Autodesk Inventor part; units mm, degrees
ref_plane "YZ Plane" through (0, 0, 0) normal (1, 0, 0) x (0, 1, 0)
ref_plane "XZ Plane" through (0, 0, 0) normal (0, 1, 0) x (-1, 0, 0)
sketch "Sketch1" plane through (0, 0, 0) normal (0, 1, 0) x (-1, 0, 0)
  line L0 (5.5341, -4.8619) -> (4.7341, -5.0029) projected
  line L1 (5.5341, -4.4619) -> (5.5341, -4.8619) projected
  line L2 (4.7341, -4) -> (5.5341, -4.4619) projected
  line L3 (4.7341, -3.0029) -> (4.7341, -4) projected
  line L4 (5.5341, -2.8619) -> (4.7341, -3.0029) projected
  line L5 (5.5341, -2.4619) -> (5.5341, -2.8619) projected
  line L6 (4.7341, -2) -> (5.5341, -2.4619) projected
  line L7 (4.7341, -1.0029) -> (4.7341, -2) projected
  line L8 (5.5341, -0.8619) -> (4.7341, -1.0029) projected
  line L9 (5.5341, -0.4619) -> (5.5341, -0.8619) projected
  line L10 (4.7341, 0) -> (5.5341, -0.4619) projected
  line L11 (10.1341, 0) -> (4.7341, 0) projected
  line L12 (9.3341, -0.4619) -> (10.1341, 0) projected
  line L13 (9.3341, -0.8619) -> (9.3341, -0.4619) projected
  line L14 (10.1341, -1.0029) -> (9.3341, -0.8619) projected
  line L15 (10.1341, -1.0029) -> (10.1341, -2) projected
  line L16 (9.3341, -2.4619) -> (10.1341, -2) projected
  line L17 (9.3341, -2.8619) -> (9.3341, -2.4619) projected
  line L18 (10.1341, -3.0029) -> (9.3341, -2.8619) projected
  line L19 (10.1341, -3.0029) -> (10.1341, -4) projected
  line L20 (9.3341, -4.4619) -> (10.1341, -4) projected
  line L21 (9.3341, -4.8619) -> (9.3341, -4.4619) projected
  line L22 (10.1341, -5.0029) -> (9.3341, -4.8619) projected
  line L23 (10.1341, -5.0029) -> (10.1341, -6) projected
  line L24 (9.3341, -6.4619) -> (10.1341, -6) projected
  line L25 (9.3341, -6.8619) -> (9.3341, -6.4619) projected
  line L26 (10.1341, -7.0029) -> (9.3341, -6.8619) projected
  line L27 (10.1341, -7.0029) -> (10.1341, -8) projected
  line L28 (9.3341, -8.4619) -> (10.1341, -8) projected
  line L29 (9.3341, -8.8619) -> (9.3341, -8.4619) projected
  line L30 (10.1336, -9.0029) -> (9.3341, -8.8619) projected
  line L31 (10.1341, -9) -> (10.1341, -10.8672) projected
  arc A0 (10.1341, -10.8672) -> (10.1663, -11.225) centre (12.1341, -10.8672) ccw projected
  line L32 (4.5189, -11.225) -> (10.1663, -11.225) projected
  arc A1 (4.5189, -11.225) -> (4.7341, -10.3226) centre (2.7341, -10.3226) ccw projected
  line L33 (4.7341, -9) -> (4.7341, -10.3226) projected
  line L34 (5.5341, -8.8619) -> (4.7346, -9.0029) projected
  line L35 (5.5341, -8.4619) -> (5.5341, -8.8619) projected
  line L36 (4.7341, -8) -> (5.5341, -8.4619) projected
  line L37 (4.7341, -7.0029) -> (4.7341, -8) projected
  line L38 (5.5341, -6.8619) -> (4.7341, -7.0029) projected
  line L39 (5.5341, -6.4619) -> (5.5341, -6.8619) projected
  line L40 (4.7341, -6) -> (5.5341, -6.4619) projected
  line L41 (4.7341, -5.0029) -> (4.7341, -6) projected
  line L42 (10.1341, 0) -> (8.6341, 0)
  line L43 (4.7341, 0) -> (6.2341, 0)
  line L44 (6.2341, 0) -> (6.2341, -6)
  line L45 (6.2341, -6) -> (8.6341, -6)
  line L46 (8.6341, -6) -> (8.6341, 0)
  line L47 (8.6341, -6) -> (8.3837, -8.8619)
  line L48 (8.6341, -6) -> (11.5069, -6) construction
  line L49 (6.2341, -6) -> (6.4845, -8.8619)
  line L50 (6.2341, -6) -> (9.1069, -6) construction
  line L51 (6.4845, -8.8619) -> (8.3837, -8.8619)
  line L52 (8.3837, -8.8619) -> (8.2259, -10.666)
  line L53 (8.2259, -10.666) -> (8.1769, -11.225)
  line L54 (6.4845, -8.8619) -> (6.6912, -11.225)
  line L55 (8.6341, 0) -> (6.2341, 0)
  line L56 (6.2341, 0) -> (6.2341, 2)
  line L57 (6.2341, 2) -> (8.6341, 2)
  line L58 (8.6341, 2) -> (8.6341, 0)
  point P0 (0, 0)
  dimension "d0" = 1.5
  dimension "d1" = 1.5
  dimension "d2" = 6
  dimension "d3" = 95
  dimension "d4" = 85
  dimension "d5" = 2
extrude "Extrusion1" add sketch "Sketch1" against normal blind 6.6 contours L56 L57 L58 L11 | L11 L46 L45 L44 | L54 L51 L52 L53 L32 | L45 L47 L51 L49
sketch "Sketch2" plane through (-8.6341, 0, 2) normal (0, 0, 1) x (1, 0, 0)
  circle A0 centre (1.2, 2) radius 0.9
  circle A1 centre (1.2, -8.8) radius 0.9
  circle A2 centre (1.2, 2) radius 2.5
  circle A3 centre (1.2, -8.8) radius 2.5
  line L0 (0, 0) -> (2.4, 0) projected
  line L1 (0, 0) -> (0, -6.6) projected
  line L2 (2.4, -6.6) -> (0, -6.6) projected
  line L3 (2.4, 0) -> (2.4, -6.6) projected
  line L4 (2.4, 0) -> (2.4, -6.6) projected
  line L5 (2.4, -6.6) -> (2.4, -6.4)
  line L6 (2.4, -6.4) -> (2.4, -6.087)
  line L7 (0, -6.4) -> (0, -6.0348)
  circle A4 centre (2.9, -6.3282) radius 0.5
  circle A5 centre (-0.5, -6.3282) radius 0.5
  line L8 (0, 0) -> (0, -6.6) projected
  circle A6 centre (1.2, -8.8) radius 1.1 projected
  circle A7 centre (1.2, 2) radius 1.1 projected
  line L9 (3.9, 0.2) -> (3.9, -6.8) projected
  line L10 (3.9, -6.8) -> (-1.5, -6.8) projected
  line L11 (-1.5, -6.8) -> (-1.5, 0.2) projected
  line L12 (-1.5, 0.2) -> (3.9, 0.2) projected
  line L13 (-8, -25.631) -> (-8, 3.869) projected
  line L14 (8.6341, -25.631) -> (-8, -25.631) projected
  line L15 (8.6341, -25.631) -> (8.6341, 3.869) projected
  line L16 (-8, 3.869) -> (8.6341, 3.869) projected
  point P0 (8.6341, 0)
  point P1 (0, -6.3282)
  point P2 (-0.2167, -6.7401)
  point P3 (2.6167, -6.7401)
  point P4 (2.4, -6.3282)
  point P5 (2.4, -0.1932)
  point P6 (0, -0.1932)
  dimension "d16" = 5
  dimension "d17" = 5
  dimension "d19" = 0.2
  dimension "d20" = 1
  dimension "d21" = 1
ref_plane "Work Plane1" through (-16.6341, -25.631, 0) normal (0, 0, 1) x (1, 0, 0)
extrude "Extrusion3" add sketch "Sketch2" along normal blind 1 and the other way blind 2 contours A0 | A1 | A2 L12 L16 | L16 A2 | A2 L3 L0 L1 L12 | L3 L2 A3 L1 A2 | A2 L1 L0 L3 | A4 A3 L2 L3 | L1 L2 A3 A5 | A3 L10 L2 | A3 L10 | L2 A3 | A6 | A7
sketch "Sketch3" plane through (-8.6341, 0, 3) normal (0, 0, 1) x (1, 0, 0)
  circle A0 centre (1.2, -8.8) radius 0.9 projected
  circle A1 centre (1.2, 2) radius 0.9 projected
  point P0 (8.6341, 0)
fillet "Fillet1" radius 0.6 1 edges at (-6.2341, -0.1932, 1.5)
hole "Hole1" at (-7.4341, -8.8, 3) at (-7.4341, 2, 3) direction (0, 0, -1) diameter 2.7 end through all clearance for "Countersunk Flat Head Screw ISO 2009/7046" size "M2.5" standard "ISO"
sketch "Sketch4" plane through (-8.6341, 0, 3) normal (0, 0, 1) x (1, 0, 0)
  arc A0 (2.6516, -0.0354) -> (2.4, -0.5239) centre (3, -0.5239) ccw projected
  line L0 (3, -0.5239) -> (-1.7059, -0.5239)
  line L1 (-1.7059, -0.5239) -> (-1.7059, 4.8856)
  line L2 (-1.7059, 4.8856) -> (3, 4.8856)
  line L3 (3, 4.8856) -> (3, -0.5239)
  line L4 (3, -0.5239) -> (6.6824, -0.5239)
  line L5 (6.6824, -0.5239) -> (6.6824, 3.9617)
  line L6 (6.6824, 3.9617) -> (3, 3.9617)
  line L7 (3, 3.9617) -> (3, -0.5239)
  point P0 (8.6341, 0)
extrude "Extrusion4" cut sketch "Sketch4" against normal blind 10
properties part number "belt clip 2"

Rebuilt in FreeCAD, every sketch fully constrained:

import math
import FreeCAD as App
import Part
import Sketcher

V = App.Vector
Q = App.Units.Quantity


def edges_at(feature, points):
    """Names of the edges that pass closest to the given points."""
    edges = feature.Shape.Edges
    near = lambda p: min(range(len(edges)), key=lambda i: edges[i].distToShape(Part.Vertex(*p))[0])
    return sorted({f"Edge{near(p) + 1}" for p in points})

doc = App.newDocument("Part")
body = doc.addObject("PartDesign::Body", "Body")

# Sketch on XZ plane
sketch1 = body.newObject("Sketcher::SketchObject", "Sketch")
sketch1.AttachmentSupport = (doc.getObject("XZ_Plane"), [""])
sketch1.MapMode = "FlatFace"
sketch1.addGeometry(Part.LineSegment(V(-6.2, 2, 0), V(-6.2, -6, 0)), False)
sketch1.addGeometry(Part.LineSegment(V(-6.2, -6, 0), V(-6.5, -8.9, 0)), False)
sketch1.addGeometry(Part.LineSegment(V(-6.5, -8.9, 0), V(-6.7, -11.2, 0)), False)
sketch1.addGeometry(Part.LineSegment(V(-6.7, -11.2, 0), V(-8.2, -11.2, 0)), False)
sketch1.addGeometry(Part.LineSegment(V(-8.2, -11.2, 0), V(-8.2, -10.7, 0)), False)
sketch1.addGeometry(Part.LineSegment(V(-8.2, -10.7, 0), V(-8.4, -8.9, 0)), False)
sketch1.addGeometry(Part.LineSegment(V(-8.4, -8.9, 0), V(-8.6, -6, 0)), False)
sketch1.addGeometry(Part.LineSegment(V(-8.6, -6, 0), V(-8.6, 2, 0)), False)
sketch1.addGeometry(Part.LineSegment(V(-8.6, 2, 0), V(-6.2, 2, 0)), False)
sketch1.addConstraint(Sketcher.Constraint("Coincident", 0, 2, 1, 1))
sketch1.addConstraint(Sketcher.Constraint("Coincident", 1, 2, 2, 1))
sketch1.addConstraint(Sketcher.Constraint("Coincident", 2, 2, 3, 1))
sketch1.addConstraint(Sketcher.Constraint("Coincident", 3, 2, 4, 1))
sketch1.addConstraint(Sketcher.Constraint("Coincident", 4, 2, 5, 1))
sketch1.addConstraint(Sketcher.Constraint("Coincident", 5, 2, 6, 1))
sketch1.addConstraint(Sketcher.Constraint("Coincident", 6, 2, 7, 1))
sketch1.addConstraint(Sketcher.Constraint("Coincident", 7, 2, 8, 1))
sketch1.addConstraint(Sketcher.Constraint("Coincident", 8, 2, 0, 1))
sketch1.addConstraint(Sketcher.Constraint("Vertical", 0))
sketch1.addConstraint(Sketcher.Constraint("Horizontal", 3))
sketch1.addConstraint(Sketcher.Constraint("Vertical", 7))
sketch1.addConstraint(Sketcher.Constraint("Horizontal", 8))
sketch1.addConstraint(Sketcher.Constraint("Parallel", 1, 2))
sketch1.addConstraint(Sketcher.Constraint("Parallel", 4, 5))
sketch1.addConstraint(Sketcher.Constraint("Parallel", 5, 6))
sketch1.addConstraint(Sketcher.Constraint("Horizontal", 1, 2, 5, 2))
sketch1.addConstraint(Sketcher.Constraint("Horizontal", 0, 2, 6, 2))
sketch1.addConstraint(Sketcher.Constraint("Equal", 1, 6))
sketch1.addConstraint(Sketcher.Constraint("Angle", 1, Q("-95.0003 deg")))
sketch1.addConstraint(Sketcher.Constraint("DistanceY", 0, 2, -1, 1, 6.0))
sketch1.addConstraint(Sketcher.Constraint("DistanceY", -1, 1, 7, 2, 2.0))
sketch1.addConstraint(Sketcher.Constraint("DistanceX", 8, 1, 8, 2, 2.4))
sketch1.addConstraint(Sketcher.Constraint("Distance", 5, 1.811))
sketch1.addConstraint(Sketcher.Constraint("DistanceX", 3, 2, 3, 1, 1.4857))
sketch1.addConstraint(Sketcher.Constraint("DistanceX", 0, 2, -1, 1, 6.234))
sketch1.addConstraint(Sketcher.Constraint("DistanceY", 1, 2, -1, 1, 8.862))
pad1 = body.newObject("PartDesign::Pad", "Pad")
pad1.Profile = sketch1
pad1.Length = 6.6

# Sketch on XY plane
sketch2 = body.newObject("Sketcher::SketchObject", "Sketch001")
sketch2.AttachmentSupport = (doc.getObject("XY_Plane"), [""])
sketch2.MapMode = "FlatFace"
sketch2.AttachmentOffset = App.Placement(V(0, 0, 2), App.Rotation())
sketch2.addGeometry(Part.LineSegment(V(-8.63, -0.19, 0), V(-8.63, -6.33, 0)), False)
sketch2.addGeometry(Part.ArcOfCircle(Part.Circle(V(-9.13, -6.33, 0), V(0, 0, 1), 0.5), math.radians(-55), math.radians(0)), False)
sketch2.addGeometry(Part.ArcOfCircle(Part.Circle(V(-7.43, -8.8, 0), V(0, 0, 1), 2.5), math.radians(125), math.radians(415)), False)
sketch2.addGeometry(Part.ArcOfCircle(Part.Circle(V(-5.73, -6.33, 0), V(0, 0, 1), 0.5), math.radians(180), math.radians(235)), False)
sketch2.addGeometry(Part.LineSegment(V(-6.23, -6.33, 0), V(-6.23, -0.19, 0)), False)
sketch2.addGeometry(Part.ArcOfCircle(Part.Circle(V(-7.43, 2, 0), V(0, 0, 1), 2.5), math.radians(-61), math.radians(241)), False)
sketch2.addConstraint(Sketcher.Constraint("Tangent", 0, 2, 1, 2))
sketch2.addConstraint(Sketcher.Constraint("Tangent", 1, 1, 2, 1))
sketch2.addConstraint(Sketcher.Constraint("Tangent", 2, 2, 3, 2))
sketch2.addConstraint(Sketcher.Constraint("Tangent", 3, 1, 4, 1))
sketch2.addConstraint(Sketcher.Constraint("Coincident", 4, 2, 5, 1))
sketch2.addConstraint(Sketcher.Constraint("Coincident", 5, 2, 0, 1))
sketch2.addConstraint(Sketcher.Constraint("Vertical", 0))
sketch2.addConstraint(Sketcher.Constraint("Vertical", 4))
sketch2.addConstraint(Sketcher.Constraint("Equal", 1, 3))
sketch2.addConstraint(Sketcher.Constraint("Equal", 2, 5))
sketch2.addConstraint(Sketcher.Constraint("Horizontal", 1, 3, 3, 3))
sketch2.addConstraint(Sketcher.Constraint("Horizontal", 4, 2, 5, 2))
sketch2.addConstraint(Sketcher.Constraint("Radius", 1, 0.5))
sketch2.addConstraint(Sketcher.Constraint("Radius", 2, 2.5))
sketch2.addConstraint(Sketcher.Constraint("DistanceY", -1, 1, 5, 3, 2.0))
sketch2.addConstraint(Sketcher.Constraint("DistanceY", 2, 3, -1, 1, 8.8))
sketch2.addConstraint(Sketcher.Constraint("DistanceX", 1, 3, 2, 3, 1.7))
sketch2.addConstraint(Sketcher.Constraint("DistanceX", 1, 3, -1, 1, 9.134))
pad2 = body.newObject("PartDesign::Pad", "Pad001")
pad2.Profile = sketch2
pad2.Type = "TwoLengths"
pad2.Length = 1
pad2.Length2 = 2
doc.recompute()

fillet = body.newObject("PartDesign::Fillet", "Fillet")
fillet.Base = (pad2, edges_at(pad2, [(-6.234, -0.193, 1.5)]))
fillet.Radius = 0.6

# Sketch on XY plane
sketch3 = body.newObject("Sketcher::SketchObject", "Sketch002")
sketch3.AttachmentSupport = (doc.getObject("XY_Plane"), [""])
sketch3.MapMode = "FlatFace"
sketch3.AttachmentOffset = App.Placement(V(0, 0, 3), App.Rotation())
sketch3.addGeometry(Part.Circle(V(-7.4, -8.8, 0), V(0, 0, 1), 1.4), False)
sketch3.addGeometry(Part.Circle(V(-7.4, 2, 0), V(0, 0, 1), 1.4), False)
sketch3.addConstraint(Sketcher.Constraint("Equal", 0, 1))
sketch3.addConstraint(Sketcher.Constraint("Vertical", 0, 3, 1, 3))
sketch3.addConstraint(Sketcher.Constraint("Diameter", 0, 2.7))
sketch3.addConstraint(Sketcher.Constraint("DistanceY", -1, 1, 1, 3, 2.0))
sketch3.addConstraint(Sketcher.Constraint("DistanceY", 0, 3, -1, 1, 8.8))
sketch3.addConstraint(Sketcher.Constraint("DistanceX", 0, 3, -1, 1, 7.434))
doc.recompute()
hole = body.newObject("PartDesign::Hole", "Hole")
hole.Profile = sketch3
hole.ThreadType = "None"
hole.Diameter = 2.7
hole.DepthType = "ThroughAll"

# Sketch on XY plane
sketch4 = body.newObject("Sketcher::SketchObject", "Sketch003")
sketch4.AttachmentSupport = (doc.getObject("XY_Plane"), [""])
sketch4.MapMode = "FlatFace"
sketch4.AttachmentOffset = App.Placement(V(0, 0, 3), App.Rotation())
sketch4.addGeometry(Part.LineSegment(V(-2, -0.5, 0), V(-2, 4, 0)), False)
sketch4.addGeometry(Part.LineSegment(V(-2, 4, 0), V(-5.6, 4, 0)), False)
sketch4.addGeometry(Part.LineSegment(V(-5.6, 4, 0), V(-5.6, 4.9, 0)), False)
sketch4.addGeometry(Part.LineSegment(V(-5.6, 4.9, 0), V(-10.3, 4.9, 0)), False)
sketch4.addGeometry(Part.LineSegment(V(-10.3, 4.9, 0), V(-10.3, -0.5, 0)), False)
sketch4.addGeometry(Part.LineSegment(V(-10.3, -0.5, 0), V(-2, -0.5, 0)), False)
sketch4.addConstraint(Sketcher.Constraint("Coincident", 0, 2, 1, 1))
sketch4.addConstraint(Sketcher.Constraint("Coincident", 1, 2, 2, 1))
sketch4.addConstraint(Sketcher.Constraint("Coincident", 2, 2, 3, 1))
sketch4.addConstraint(Sketcher.Constraint("Coincident", 3, 2, 4, 1))
sketch4.addConstraint(Sketcher.Constraint("Coincident", 4, 2, 5, 1))
sketch4.addConstraint(Sketcher.Constraint("Coincident", 5, 2, 0, 1))
sketch4.addConstraint(Sketcher.Constraint("Vertical", 0))
sketch4.addConstraint(Sketcher.Constraint("Horizontal", 1))
sketch4.addConstraint(Sketcher.Constraint("Vertical", 2))
sketch4.addConstraint(Sketcher.Constraint("Horizontal", 3))
sketch4.addConstraint(Sketcher.Constraint("Vertical", 4))
sketch4.addConstraint(Sketcher.Constraint("Horizontal", 5))
sketch4.addConstraint(Sketcher.Constraint("DistanceX", 3, 2, 3, 1, 4.706))
sketch4.addConstraint(Sketcher.Constraint("DistanceY", 2, 1, 2, 2, 0.924))
sketch4.addConstraint(Sketcher.Constraint("DistanceX", 3, 2, -1, 1, 10.34))
sketch4.addConstraint(Sketcher.Constraint("DistanceX", 1, 2, 1, 1, 3.6824))
sketch4.addConstraint(Sketcher.Constraint("DistanceY", 0, 1, 0, 2, 4.4856))
sketch4.addConstraint(Sketcher.Constraint("DistanceY", 4, 2, -1, 1, 0.524))
pocket1 = body.newObject("PartDesign::Pocket", "Pocket")
pocket1.Profile = sketch4
pocket1.Length = 10

doc.recompute()
